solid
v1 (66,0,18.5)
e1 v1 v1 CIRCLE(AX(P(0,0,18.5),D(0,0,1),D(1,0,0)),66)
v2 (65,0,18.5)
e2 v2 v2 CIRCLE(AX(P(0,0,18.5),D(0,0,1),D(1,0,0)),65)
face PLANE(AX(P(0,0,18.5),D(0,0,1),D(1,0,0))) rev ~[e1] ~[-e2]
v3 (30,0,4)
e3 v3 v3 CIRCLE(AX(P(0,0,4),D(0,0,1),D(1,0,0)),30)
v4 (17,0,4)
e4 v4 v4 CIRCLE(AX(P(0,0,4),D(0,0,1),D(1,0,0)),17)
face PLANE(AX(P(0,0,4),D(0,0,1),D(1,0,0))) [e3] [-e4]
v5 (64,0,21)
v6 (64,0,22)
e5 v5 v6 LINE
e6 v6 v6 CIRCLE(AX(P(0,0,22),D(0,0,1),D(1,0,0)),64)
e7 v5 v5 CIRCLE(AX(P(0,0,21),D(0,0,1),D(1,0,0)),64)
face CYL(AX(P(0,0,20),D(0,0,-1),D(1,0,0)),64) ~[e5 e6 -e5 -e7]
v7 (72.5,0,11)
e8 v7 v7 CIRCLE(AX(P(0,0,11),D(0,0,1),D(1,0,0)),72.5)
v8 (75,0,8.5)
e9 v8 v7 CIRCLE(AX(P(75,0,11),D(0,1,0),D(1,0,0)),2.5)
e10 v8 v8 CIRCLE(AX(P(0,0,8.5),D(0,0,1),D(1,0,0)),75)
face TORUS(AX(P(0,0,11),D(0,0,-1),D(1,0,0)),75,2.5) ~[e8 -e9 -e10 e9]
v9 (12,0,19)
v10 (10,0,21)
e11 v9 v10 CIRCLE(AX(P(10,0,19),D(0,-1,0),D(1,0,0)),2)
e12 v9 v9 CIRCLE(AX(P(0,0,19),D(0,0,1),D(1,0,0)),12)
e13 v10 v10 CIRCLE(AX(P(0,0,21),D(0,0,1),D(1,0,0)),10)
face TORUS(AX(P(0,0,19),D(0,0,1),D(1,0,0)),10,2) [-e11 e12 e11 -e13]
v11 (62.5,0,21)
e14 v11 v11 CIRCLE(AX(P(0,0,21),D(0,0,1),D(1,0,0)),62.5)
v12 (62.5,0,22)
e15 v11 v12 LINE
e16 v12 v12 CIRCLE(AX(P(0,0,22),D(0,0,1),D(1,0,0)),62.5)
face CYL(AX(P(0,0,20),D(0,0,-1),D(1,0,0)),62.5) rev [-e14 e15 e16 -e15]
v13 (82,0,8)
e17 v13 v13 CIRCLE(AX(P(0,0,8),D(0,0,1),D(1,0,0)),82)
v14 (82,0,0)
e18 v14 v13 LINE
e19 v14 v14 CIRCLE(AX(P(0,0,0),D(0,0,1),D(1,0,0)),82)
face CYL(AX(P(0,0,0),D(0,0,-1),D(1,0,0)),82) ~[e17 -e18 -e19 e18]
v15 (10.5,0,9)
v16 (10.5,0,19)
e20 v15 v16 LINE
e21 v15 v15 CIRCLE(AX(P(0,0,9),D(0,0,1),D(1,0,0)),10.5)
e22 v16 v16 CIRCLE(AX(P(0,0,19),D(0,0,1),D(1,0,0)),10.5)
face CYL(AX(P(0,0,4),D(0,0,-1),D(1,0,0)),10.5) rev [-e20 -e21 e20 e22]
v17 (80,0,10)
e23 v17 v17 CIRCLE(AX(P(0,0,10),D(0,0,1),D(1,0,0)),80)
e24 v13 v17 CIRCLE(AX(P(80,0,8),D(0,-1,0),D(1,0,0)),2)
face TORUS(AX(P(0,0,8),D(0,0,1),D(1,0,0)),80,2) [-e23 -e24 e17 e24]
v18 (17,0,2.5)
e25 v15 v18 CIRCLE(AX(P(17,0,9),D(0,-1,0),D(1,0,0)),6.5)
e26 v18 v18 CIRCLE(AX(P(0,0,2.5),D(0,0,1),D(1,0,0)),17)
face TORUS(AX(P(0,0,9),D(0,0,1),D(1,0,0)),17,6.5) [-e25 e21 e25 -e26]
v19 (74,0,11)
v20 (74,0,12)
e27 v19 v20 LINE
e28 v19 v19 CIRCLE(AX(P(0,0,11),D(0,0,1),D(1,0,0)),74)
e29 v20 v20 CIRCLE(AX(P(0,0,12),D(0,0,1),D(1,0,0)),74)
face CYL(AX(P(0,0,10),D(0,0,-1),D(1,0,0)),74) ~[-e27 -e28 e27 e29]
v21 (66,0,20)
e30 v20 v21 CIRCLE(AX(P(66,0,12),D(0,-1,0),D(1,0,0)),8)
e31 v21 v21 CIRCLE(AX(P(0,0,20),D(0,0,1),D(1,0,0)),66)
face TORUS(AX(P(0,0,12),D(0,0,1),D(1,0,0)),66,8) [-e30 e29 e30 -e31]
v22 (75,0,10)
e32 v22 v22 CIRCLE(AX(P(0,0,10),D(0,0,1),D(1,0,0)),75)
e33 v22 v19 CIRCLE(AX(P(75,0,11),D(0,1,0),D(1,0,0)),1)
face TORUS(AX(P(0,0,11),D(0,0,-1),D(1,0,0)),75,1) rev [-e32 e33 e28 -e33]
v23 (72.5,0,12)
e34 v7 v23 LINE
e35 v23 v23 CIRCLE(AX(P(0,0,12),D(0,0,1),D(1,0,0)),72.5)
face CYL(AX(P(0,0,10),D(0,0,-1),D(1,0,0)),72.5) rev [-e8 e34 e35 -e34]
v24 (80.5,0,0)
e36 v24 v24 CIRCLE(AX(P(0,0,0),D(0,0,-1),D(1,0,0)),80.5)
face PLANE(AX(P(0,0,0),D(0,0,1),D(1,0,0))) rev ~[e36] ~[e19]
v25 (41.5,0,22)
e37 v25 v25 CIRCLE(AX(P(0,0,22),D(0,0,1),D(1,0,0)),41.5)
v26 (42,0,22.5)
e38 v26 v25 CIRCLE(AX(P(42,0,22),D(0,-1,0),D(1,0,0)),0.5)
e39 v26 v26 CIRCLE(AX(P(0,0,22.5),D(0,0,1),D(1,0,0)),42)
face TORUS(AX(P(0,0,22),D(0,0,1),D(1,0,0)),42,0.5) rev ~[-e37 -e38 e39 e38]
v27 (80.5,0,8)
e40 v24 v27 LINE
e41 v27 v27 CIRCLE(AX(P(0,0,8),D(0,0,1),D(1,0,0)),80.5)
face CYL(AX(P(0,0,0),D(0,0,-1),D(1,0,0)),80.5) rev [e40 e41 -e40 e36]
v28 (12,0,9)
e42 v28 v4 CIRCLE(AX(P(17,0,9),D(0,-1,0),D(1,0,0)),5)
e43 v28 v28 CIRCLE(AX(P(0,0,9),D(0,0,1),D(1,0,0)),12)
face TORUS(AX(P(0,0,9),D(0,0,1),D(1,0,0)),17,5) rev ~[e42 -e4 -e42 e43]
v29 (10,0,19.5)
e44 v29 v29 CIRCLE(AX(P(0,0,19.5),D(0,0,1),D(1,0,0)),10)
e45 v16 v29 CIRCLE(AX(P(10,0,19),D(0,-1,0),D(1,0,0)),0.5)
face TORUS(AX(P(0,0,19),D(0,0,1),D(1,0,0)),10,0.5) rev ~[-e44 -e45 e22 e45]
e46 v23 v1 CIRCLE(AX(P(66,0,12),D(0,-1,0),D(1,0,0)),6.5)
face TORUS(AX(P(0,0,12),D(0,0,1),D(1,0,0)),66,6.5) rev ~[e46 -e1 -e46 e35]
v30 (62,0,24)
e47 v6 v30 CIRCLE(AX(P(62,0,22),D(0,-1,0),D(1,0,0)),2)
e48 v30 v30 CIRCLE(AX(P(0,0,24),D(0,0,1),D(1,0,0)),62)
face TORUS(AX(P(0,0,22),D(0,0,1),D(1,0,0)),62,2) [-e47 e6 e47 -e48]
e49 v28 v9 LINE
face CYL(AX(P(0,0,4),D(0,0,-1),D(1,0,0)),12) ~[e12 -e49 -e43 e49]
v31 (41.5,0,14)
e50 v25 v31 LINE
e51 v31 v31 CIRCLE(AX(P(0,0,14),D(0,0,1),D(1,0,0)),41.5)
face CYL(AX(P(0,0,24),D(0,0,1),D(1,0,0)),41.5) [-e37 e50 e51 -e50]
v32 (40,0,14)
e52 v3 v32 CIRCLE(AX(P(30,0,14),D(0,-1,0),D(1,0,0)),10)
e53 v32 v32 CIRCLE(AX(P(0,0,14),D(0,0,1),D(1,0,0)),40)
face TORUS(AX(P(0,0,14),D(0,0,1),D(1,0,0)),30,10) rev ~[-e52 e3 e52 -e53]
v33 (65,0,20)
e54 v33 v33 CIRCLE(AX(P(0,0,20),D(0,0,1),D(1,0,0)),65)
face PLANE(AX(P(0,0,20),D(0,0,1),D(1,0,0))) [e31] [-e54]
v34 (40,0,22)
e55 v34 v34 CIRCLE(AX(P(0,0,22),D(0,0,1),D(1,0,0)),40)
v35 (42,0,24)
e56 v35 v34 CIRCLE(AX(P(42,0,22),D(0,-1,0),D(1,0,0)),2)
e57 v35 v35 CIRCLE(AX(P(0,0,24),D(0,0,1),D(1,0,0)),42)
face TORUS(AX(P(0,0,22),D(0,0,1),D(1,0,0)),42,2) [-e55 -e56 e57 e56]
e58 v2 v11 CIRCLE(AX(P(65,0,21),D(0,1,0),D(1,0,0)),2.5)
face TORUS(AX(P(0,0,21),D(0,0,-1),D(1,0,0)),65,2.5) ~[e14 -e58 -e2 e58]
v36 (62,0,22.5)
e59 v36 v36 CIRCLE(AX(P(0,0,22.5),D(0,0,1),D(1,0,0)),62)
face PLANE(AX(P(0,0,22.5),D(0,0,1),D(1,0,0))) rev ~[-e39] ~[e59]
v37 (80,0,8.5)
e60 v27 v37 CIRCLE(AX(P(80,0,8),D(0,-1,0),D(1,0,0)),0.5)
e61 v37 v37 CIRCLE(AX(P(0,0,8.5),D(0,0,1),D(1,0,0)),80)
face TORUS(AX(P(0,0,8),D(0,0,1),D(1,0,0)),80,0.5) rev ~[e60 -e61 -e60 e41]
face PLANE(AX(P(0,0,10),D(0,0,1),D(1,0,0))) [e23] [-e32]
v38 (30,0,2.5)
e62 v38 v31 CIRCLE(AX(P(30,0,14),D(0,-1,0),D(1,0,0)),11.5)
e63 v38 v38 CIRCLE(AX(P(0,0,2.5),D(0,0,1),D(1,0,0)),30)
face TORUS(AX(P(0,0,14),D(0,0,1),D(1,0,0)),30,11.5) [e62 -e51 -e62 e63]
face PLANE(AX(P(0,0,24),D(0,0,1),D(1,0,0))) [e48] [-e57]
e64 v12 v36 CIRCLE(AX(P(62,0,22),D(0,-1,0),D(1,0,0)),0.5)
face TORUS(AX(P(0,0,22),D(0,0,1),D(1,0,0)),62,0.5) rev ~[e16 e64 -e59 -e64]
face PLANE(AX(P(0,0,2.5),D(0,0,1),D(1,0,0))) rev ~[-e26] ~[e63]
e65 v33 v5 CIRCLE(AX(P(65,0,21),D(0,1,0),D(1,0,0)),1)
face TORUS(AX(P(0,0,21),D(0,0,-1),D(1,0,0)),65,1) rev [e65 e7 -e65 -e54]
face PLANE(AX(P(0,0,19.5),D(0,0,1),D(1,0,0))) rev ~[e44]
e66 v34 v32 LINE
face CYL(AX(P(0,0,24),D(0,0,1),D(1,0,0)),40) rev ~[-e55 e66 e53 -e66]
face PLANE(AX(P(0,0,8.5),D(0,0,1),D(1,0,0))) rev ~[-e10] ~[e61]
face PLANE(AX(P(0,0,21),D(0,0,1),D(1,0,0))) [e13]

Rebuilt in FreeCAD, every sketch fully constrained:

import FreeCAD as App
import Part
import Sketcher
Q = App.Units.Quantity


def edges_at(feature, points):
    """Names of the edges that pass closest to the given points."""
    edges = feature.Shape.Edges
    near = lambda p: min(range(len(edges)), key=lambda i: edges[i].distToShape(Part.Vertex(*p))[0])
    return sorted({f"Edge{near(p) + 1}" for p in points})


def faces_at(feature, points):
    """Names of the faces that lie closest to the given points."""
    faces = feature.Shape.Faces
    near = lambda p: min(range(len(faces)), key=lambda i: faces[i].distToShape(Part.Vertex(*p))[0])
    return sorted({f"Face{near(p) + 1}" for p in points})

doc = App.newDocument("Part")
body = doc.addObject("PartDesign::Body", "Body")

# Sketch on XY plane
sketch1 = body.newObject("Sketcher::SketchObject", "Sketch")
sketch1.AttachmentSupport = (doc.getObject("XY_Plane"), [""])
sketch1.MapMode = "FlatFace"
sketch1.addGeometry(Part.Circle(App.Vector(0, 0, 0), App.Vector(0, 0, 1), 82), False)
sketch1.addConstraint(Sketcher.Constraint("Coincident", 0, 3, -1, 1))
sketch1.addConstraint(Sketcher.Constraint("Diameter", 0, Q("164 mm")))
pad1 = body.newObject("PartDesign::Pad", "Pad")
pad1.Profile = sketch1
pad1.Length = 10

# Sketch on XY plane
sketch2 = body.newObject("Sketcher::SketchObject", "Sketch001")
sketch2.AttachmentSupport = (doc.getObject("XY_Plane"), [""])
sketch2.MapMode = "FlatFace"
sketch2.AttachmentOffset = App.Placement(App.Vector(0, 0, 10), App.Rotation())
sketch2.addGeometry(Part.Circle(App.Vector(0, 0, 0), App.Vector(0, 0, 1), 74), False)
sketch2.addConstraint(Sketcher.Constraint("Coincident", 0, 3, -1, 1))
sketch2.addConstraint(Sketcher.Constraint("Diameter", 0, Q("148 mm")))
pad2 = body.newObject("PartDesign::Pad", "Pad001")
pad2.Profile = sketch2
pad2.Length = 10

# Sketch on XY plane
sketch3 = body.newObject("Sketcher::SketchObject", "Sketch002")
sketch3.AttachmentSupport = (doc.getObject("XY_Plane"), [""])
sketch3.MapMode = "FlatFace"
sketch3.AttachmentOffset = App.Placement(App.Vector(0, 0, 20), App.Rotation())
sketch3.addGeometry(Part.Circle(App.Vector(0, 0, 0), App.Vector(0, 0, 1), 64), False)
sketch3.addConstraint(Sketcher.Constraint("Coincident", 0, 3, -1, 1))
sketch3.addConstraint(Sketcher.Constraint("Diameter", 0, Q("128 mm")))
pad3 = body.newObject("PartDesign::Pad", "Pad002")
pad3.Profile = sketch3
pad3.Length = 4

# Sketch on XY plane
sketch4 = body.newObject("Sketcher::SketchObject", "Sketch003")
sketch4.AttachmentSupport = (doc.getObject("XY_Plane"), [""])
sketch4.MapMode = "FlatFace"
sketch4.AttachmentOffset = App.Placement(App.Vector(0, 0, 24), App.Rotation())
sketch4.addGeometry(Part.Circle(App.Vector(0, 0, 0), App.Vector(0, 0, 1), 40), False)
sketch4.addConstraint(Sketcher.Constraint("Coincident", 0, 3, -1, 1))
sketch4.addConstraint(Sketcher.Constraint("Diameter", 0, Q("80 mm")))
pocket1 = body.newObject("PartDesign::Pocket", "Pocket")
pocket1.Profile = sketch4
pocket1.Length = 20

# Sketch on XY plane
sketch5 = body.newObject("Sketcher::SketchObject", "Sketch004")
sketch5.AttachmentSupport = (doc.getObject("XY_Plane"), [""])
sketch5.MapMode = "FlatFace"
sketch5.AttachmentOffset = App.Placement(App.Vector(0, 0, 4), App.Rotation())
sketch5.addGeometry(Part.Circle(App.Vector(0, 0, 0), App.Vector(0, 0, 1), 12), False)
sketch5.addConstraint(Sketcher.Constraint("Coincident", 0, 3, -1, 1))
sketch5.addConstraint(Sketcher.Constraint("Diameter", 0, Q("24 mm")))
pad4 = body.newObject("PartDesign::Pad", "Pad003")
pad4.Profile = sketch5
pad4.Length = 17
doc.recompute()

fillet = body.newObject("PartDesign::Fillet", "Fillet")
fillet.Base = (pad4, edges_at(pad4, [(-82, 0, 10)]))
fillet.Radius = 2
doc.recompute()

fillet2 = body.newObject("PartDesign::Fillet", "Fillet001")
fillet2.Base = (fillet, edges_at(fillet, [(-74, 0, 10)]))
fillet2.Radius = 1
doc.recompute()

fillet3 = body.newObject("PartDesign::Fillet", "Fillet002")
fillet3.Base = (fillet2, edges_at(fillet2, [(-74, 0, 20)]))
fillet3.Radius = 8
doc.recompute()

fillet4 = body.newObject("PartDesign::Fillet", "Fillet003")
fillet4.Base = (fillet3, edges_at(fillet3, [(-64, 0, 20)]))
fillet4.Radius = 1
doc.recompute()

fillet5 = body.newObject("PartDesign::Fillet", "Fillet004")
fillet5.Base = (fillet4, edges_at(fillet4, [(-64, 0, 24)]))
fillet5.Radius = 2
doc.recompute()

fillet6 = body.newObject("PartDesign::Fillet", "Fillet005")
fillet6.Base = (fillet5, edges_at(fillet5, [(-40, 0, 24)]))
fillet6.Radius = 2
doc.recompute()

fillet7 = body.newObject("PartDesign::Fillet", "Fillet006")
fillet7.Base = (fillet6, edges_at(fillet6, [(-12, 0, 21)]))
fillet7.Radius = 2
doc.recompute()

fillet8 = body.newObject("PartDesign::Fillet", "Fillet007")
fillet8.Base = (fillet7, edges_at(fillet7, [(-12, 0, 4)]))
fillet8.Radius = 5
doc.recompute()

fillet9 = body.newObject("PartDesign::Fillet", "Fillet008")
fillet9.Base = (fillet8, edges_at(fillet8, [(-40, 0, 4)]))
fillet9.Radius = 10
doc.recompute()

thickness = body.newObject("PartDesign::Thickness", "Thickness")
thickness.Base = (fillet9, faces_at(fillet9, [(5.284, -24.741, 0)]))
thickness.Value = 1.5
thickness.Reversed = True
thickness.Join = "Intersection"

doc.recompute()
